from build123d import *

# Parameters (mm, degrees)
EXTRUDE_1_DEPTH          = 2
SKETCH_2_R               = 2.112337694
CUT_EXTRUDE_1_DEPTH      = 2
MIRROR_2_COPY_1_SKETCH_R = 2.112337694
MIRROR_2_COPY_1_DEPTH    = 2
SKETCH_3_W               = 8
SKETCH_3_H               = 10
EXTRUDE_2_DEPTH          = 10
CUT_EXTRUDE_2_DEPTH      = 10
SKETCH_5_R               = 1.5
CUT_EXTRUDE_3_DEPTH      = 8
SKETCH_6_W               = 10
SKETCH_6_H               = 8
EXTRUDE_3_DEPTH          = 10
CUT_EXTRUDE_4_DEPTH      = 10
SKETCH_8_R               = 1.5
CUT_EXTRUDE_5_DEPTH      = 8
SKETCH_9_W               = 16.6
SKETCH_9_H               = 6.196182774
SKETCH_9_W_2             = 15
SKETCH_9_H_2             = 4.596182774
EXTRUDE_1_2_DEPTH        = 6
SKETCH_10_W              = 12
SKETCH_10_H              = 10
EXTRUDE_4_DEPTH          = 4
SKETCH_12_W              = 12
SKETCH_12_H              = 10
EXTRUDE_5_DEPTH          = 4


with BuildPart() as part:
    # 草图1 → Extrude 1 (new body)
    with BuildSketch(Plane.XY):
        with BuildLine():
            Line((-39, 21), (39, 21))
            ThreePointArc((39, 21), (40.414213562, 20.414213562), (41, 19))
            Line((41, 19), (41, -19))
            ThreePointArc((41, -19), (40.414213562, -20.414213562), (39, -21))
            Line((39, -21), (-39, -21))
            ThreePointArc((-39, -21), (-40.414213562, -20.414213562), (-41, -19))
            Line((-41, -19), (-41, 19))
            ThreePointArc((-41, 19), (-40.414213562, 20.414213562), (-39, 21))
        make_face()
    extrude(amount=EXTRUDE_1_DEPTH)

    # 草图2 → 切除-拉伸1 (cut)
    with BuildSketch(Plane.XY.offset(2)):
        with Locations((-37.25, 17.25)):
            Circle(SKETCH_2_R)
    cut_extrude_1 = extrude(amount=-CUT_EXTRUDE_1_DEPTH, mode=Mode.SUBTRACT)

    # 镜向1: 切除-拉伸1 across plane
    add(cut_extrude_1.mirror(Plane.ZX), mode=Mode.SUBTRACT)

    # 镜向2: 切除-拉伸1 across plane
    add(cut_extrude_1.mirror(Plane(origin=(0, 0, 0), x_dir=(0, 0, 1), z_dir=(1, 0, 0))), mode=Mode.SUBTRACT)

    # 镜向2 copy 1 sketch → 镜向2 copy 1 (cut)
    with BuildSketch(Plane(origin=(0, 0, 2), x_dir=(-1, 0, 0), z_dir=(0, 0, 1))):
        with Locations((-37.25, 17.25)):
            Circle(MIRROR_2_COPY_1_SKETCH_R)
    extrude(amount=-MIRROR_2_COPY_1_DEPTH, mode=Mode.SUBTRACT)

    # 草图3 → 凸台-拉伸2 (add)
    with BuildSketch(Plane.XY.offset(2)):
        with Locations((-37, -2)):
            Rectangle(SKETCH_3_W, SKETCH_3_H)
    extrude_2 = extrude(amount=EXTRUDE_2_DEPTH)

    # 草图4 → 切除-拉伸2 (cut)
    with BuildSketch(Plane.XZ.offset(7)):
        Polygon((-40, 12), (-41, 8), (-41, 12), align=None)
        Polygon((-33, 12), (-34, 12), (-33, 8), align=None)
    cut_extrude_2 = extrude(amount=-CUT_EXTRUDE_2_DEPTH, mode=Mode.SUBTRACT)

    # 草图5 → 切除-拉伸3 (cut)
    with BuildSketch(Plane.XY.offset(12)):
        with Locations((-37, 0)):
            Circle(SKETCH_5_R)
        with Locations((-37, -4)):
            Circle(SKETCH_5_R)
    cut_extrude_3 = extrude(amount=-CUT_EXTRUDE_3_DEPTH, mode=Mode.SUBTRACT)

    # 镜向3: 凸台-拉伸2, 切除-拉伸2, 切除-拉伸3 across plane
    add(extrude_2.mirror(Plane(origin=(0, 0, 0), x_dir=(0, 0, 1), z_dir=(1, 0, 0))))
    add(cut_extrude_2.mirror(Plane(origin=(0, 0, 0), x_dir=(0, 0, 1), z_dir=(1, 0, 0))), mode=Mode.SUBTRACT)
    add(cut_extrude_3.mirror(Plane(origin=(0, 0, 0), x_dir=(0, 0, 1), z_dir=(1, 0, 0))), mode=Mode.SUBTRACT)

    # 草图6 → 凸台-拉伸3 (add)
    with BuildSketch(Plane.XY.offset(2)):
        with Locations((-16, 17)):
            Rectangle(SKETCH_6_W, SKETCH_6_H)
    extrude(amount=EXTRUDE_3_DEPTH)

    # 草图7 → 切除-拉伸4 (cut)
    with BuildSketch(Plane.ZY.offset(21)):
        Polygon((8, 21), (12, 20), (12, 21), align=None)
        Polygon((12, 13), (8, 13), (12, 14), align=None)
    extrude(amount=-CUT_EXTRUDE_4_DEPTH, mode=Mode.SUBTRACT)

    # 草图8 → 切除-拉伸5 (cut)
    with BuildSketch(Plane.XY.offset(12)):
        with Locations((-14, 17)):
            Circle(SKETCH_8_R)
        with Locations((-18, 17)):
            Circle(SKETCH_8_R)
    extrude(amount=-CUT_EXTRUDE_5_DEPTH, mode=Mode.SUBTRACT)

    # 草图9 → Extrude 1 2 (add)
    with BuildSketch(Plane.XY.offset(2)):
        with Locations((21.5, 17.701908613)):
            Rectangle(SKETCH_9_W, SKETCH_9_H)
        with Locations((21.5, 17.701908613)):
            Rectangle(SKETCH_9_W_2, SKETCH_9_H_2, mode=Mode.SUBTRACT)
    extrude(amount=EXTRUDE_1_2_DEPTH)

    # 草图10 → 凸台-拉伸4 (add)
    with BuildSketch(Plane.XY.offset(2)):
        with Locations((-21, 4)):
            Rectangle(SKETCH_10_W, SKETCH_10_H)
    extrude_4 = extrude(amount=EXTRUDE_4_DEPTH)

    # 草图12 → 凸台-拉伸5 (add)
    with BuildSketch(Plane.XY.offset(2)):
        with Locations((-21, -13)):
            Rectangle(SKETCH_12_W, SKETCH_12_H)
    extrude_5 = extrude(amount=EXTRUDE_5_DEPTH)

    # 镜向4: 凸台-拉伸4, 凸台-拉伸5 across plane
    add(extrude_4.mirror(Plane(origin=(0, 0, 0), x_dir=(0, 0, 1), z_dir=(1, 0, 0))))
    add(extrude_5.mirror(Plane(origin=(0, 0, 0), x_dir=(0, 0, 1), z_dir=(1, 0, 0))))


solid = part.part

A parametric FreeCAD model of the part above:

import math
import FreeCAD as App
import Part
import Sketcher

V = App.Vector
Q = App.Units.Quantity


def add_polygon(sketch, points):
    """Adds a closed chain of lines whose ends are joined by coincident constraints."""
    first, n = sketch.GeometryCount, len(points)
    for a, b in zip(points, points[1:] + points[:1]):
        sketch.addGeometry(Part.LineSegment(App.Vector(*a, 0), App.Vector(*b, 0)), False)
    for i in range(n):
        sketch.addConstraint(Sketcher.Constraint("Coincident", first + i, 2, first + (i + 1) % n, 1))

doc = App.newDocument("Part")
body = doc.addObject("PartDesign::Body", "Body")

# Sketch on XY plane
sketch1 = body.newObject("Sketcher::SketchObject", "Sketch")
sketch1.AttachmentSupport = (doc.getObject("XY_Plane"), [""])
sketch1.MapMode = "FlatFace"
sketch1.addGeometry(Part.LineSegment(V(39, 21, 0), V(-39, 21, 0)), False)
sketch1.addGeometry(Part.ArcOfCircle(Part.Circle(V(-39, 19, 0), V(0, 0, 1), 2), math.radians(90), math.radians(180)), False)
sketch1.addGeometry(Part.LineSegment(V(-41, 19, 0), V(-41, -19, 0)), False)
sketch1.addGeometry(Part.ArcOfCircle(Part.Circle(V(-39, -19, 0), V(0, 0, 1), 2), math.radians(-180), math.radians(-90)), False)
sketch1.addGeometry(Part.LineSegment(V(-39, -21, 0), V(39, -21, 0)), False)
sketch1.addGeometry(Part.ArcOfCircle(Part.Circle(V(39, -19, 0), V(0, 0, 1), 2), math.radians(-90), math.radians(0)), False)
sketch1.addGeometry(Part.LineSegment(V(41, -19, 0), V(41, 19, 0)), False)
sketch1.addGeometry(Part.ArcOfCircle(Part.Circle(V(39, 19, 0), V(0, 0, 1), 2), math.radians(0), math.radians(90)), False)
sketch1.addConstraint(Sketcher.Constraint("Tangent", 0, 2, 1, 1))
sketch1.addConstraint(Sketcher.Constraint("Tangent", 1, 2, 2, 1))
sketch1.addConstraint(Sketcher.Constraint("Tangent", 2, 2, 3, 1))
sketch1.addConstraint(Sketcher.Constraint("Tangent", 3, 2, 4, 1))
sketch1.addConstraint(Sketcher.Constraint("Tangent", 4, 2, 5, 1))
sketch1.addConstraint(Sketcher.Constraint("Tangent", 5, 2, 6, 1))
sketch1.addConstraint(Sketcher.Constraint("Tangent", 6, 2, 7, 1))
sketch1.addConstraint(Sketcher.Constraint("Tangent", 7, 2, 0, 1))
sketch1.addConstraint(Sketcher.Constraint("Horizontal", 0))
sketch1.addConstraint(Sketcher.Constraint("Vertical", 2))
sketch1.addConstraint(Sketcher.Constraint("Horizontal", 4))
sketch1.addConstraint(Sketcher.Constraint("Vertical", 6))
sketch1.addConstraint(Sketcher.Constraint("Equal", 1, 3))
sketch1.addConstraint(Sketcher.Constraint("Equal", 3, 5))
sketch1.addConstraint(Sketcher.Constraint("Equal", 5, 7))
sketch1.addConstraint(Sketcher.Constraint("Symmetric", 1, 3, 5, 3, -1, 1))
sketch1.addConstraint(Sketcher.Constraint("Radius", 1, Q("2 mm")))
sketch1.addConstraint(Sketcher.Constraint("DistanceX", 0, 2, 0, 1, Q("78 mm")))
sketch1.addConstraint(Sketcher.Constraint("DistanceY", 2, 2, 2, 1, Q("38 mm")))
pad1 = body.newObject("PartDesign::Pad", "Pad")
pad1.Profile = sketch1
pad1.Length = 2

# Sketch on XY plane
sketch2 = body.newObject("Sketcher::SketchObject", "Sketch001")
sketch2.AttachmentSupport = (doc.getObject("XY_Plane"), [""])
sketch2.MapMode = "FlatFace"
sketch2.AttachmentOffset = App.Placement(V(0, 0, 2), App.Rotation())
sketch2.addGeometry(Part.Circle(V(-37.25, 17.25, 0), V(0, 0, 1), 2.112338), False)
sketch2.addConstraint(Sketcher.Constraint("DistanceX", 0, 3, -1, 1, Q("37.25 mm")))
sketch2.addConstraint(Sketcher.Constraint("DistanceY", -1, 1, 0, 3, Q("17.25 mm")))
sketch2.addConstraint(Sketcher.Constraint("Diameter", 0, Q("4.224675 mm")))
pocket1 = body.newObject("PartDesign::Pocket", "Pocket")
pocket1.Profile = sketch2
pocket1.Length = 2
doc.recompute()

mirrored = body.newObject("PartDesign::Mirrored", "Mirrored")
mirrored.Originals = [pocket1]
mirrored.MirrorPlane = (doc.getObject("XZ_Plane"), [""])
body.Tip = mirrored
doc.recompute()

mirrored2 = body.newObject("PartDesign::Mirrored", "Mirrored001")
mirrored2.Originals = [pocket1]
mirrored2.MirrorPlane = (doc.getObject("YZ_Plane"), [""])
body.Tip = mirrored2

# Sketch on XY plane
sketch3 = body.newObject("Sketcher::SketchObject", "Sketch002")
sketch3.AttachmentSupport = (doc.getObject("XY_Plane"), [""])
sketch3.MapMode = "FlatFace"
sketch3.AttachmentOffset = App.Placement(V(0, 0, 2), App.Rotation())
sketch3.addGeometry(Part.Circle(V(37.25, -17.25, 0), V(0, 0, 1), 2.112338), False)
sketch3.addConstraint(Sketcher.Constraint("DistanceX", -1, 1, 0, 3, Q("37.25 mm")))
sketch3.addConstraint(Sketcher.Constraint("DistanceY", 0, 3, -1, 1, Q("17.25 mm")))
sketch3.addConstraint(Sketcher.Constraint("Diameter", 0, Q("4.224675 mm")))
pocket2 = body.newObject("PartDesign::Pocket", "Pocket001")
pocket2.Profile = sketch3
pocket2.Length = 2

# Sketch on XY plane
sketch4 = body.newObject("Sketcher::SketchObject", "Sketch003")
sketch4.AttachmentSupport = (doc.getObject("XY_Plane"), [""])
sketch4.MapMode = "FlatFace"
sketch4.AttachmentOffset = App.Placement(V(0, 0, 2), App.Rotation())
add_polygon(sketch4, [(-41, 3), (-41, -7), (-33, -7), (-33, 3)])  # lines 0-3
sketch4.addConstraint(Sketcher.Constraint("Vertical", 0))
sketch4.addConstraint(Sketcher.Constraint("Horizontal", 1))
sketch4.addConstraint(Sketcher.Constraint("Vertical", 2))
sketch4.addConstraint(Sketcher.Constraint("Horizontal", 3))
sketch4.addConstraint(Sketcher.Constraint("DistanceX", 1, 1, 1, 2, Q("8 mm")))
sketch4.addConstraint(Sketcher.Constraint("DistanceY", 0, 2, 0, 1, Q("10 mm")))
sketch4.addConstraint(Sketcher.Constraint("DistanceX", 0, 2, -1, 1, Q("41 mm")))
sketch4.addConstraint(Sketcher.Constraint("DistanceY", 0, 2, -1, 1, Q("7 mm")))
pad2 = body.newObject("PartDesign::Pad", "Pad001")
pad2.Profile = sketch4
pad2.Length = 10

# Sketch on XZ plane
sketch5 = body.newObject("Sketcher::SketchObject", "Sketch004")
sketch5.AttachmentSupport = (doc.getObject("XZ_Plane"), [""])
sketch5.MapMode = "FlatFace"
sketch5.AttachmentOffset = App.Placement(V(0, 0, 7), App.Rotation())
add_polygon(sketch5, [(-41, 8), (-40, 12), (-41, 12)])  # lines 0-2
add_polygon(sketch5, [(-33, 12), (-34, 12), (-33, 8)])  # lines 3-5
sketch5.addConstraint(Sketcher.Constraint("Horizontal", 1))
sketch5.addConstraint(Sketcher.Constraint("Vertical", 2))
sketch5.addConstraint(Sketcher.Constraint("Horizontal", 3))
sketch5.addConstraint(Sketcher.Constraint("Vertical", 5))
sketch5.addConstraint(Sketcher.Constraint("Horizontal", 1, 2, 3, 2))
sketch5.addConstraint(Sketcher.Constraint("Horizontal", 2, 2, 4, 2))
sketch5.addConstraint(Sketcher.Constraint("Equal", 1, 3))
sketch5.addConstraint(Sketcher.Constraint("DistanceX", 1, 2, 1, 1, Q("1 mm")))
sketch5.addConstraint(Sketcher.Constraint("DistanceY", 2, 2, 2, 1, Q("4 mm")))
sketch5.addConstraint(Sketcher.Constraint("DistanceX", 0, 2, -1, 1, Q("40 mm")))
sketch5.addConstraint(Sketcher.Constraint("DistanceY", -1, 1, 0, 2, Q("12 mm")))
sketch5.addConstraint(Sketcher.Constraint("DistanceX", 3, 2, -1, 1, Q("34 mm")))
pocket3 = body.newObject("PartDesign::Pocket", "Pocket002")
pocket3.Profile = sketch5
pocket3.Length = 10

# Sketch on XY plane
sketch6 = body.newObject("Sketcher::SketchObject", "Sketch005")
sketch6.AttachmentSupport = (doc.getObject("XY_Plane"), [""])
sketch6.MapMode = "FlatFace"
sketch6.AttachmentOffset = App.Placement(V(0, 0, 12), App.Rotation())
sketch6.addGeometry(Part.Circle(V(-37, 0, 0), V(0, 0, 1), 1.5), False)
sketch6.addGeometry(Part.Circle(V(-37, -4, 0), V(0, 0, 1), 1.5), False)
sketch6.addConstraint(Sketcher.Constraint("Equal", 0, 1))
sketch6.addConstraint(Sketcher.Constraint("PointOnObject", 0, 3, -1))
sketch6.addConstraint(Sketcher.Constraint("Vertical", 0, 3, 1, 3))
sketch6.addConstraint(Sketcher.Constraint("Diameter", 0, Q("3 mm")))
sketch6.addConstraint(Sketcher.Constraint("DistanceX", 0, 3, -1, 1, Q("37 mm")))
sketch6.addConstraint(Sketcher.Constraint("DistanceY", 1, 3, -1, 1, Q("4 mm")))
pocket4 = body.newObject("PartDesign::Pocket", "Pocket003")
pocket4.Profile = sketch6
pocket4.Length = 8
doc.recompute()

mirrored3 = body.newObject("PartDesign::Mirrored", "Mirrored002")
mirrored3.Originals = [pad2, pocket3, pocket4]
mirrored3.MirrorPlane = (doc.getObject("YZ_Plane"), [""])
body.Tip = mirrored3

# Sketch on XY plane
sketch7 = body.newObject("Sketcher::SketchObject", "Sketch006")
sketch7.AttachmentSupport = (doc.getObject("XY_Plane"), [""])
sketch7.MapMode = "FlatFace"
sketch7.AttachmentOffset = App.Placement(V(0, 0, 2), App.Rotation())
add_polygon(sketch7, [(-21, 21), (-21, 13), (-11, 13), (-11, 21)])  # lines 0-3
sketch7.addConstraint(Sketcher.Constraint("Vertical", 0))
sketch7.addConstraint(Sketcher.Constraint("Horizontal", 1))
sketch7.addConstraint(Sketcher.Constraint("Vertical", 2))
sketch7.addConstraint(Sketcher.Constraint("Horizontal", 3))
sketch7.addConstraint(Sketcher.Constraint("DistanceX", 1, 1, 1, 2, Q("10 mm")))
sketch7.addConstraint(Sketcher.Constraint("DistanceY", 0, 2, 0, 1, Q("8 mm")))
sketch7.addConstraint(Sketcher.Constraint("DistanceX", 0, 2, -1, 1, Q("21 mm")))
sketch7.addConstraint(Sketcher.Constraint("DistanceY", -1, 1, 0, 2, Q("13 mm")))
pad3 = body.newObject("PartDesign::Pad", "Pad002")
pad3.Profile = sketch7
pad3.Length = 10

# Sketch on YZ plane
sketch8 = body.newObject("Sketcher::SketchObject", "Sketch007")
sketch8.AttachmentSupport = (doc.getObject("YZ_Plane"), [""])
sketch8.MapMode = "FlatFace"
sketch8.AttachmentOffset = App.Placement(V(0, 0, -21), App.Rotation())
add_polygon(sketch8, [(21, 8), (20, 12), (21, 12)])  # lines 0-2
add_polygon(sketch8, [(13, 8), (13, 12), (14, 12)])  # lines 3-5
sketch8.addConstraint(Sketcher.Constraint("Horizontal", 1))
sketch8.addConstraint(Sketcher.Constraint("Vertical", 2))
sketch8.addConstraint(Sketcher.Constraint("Vertical", 3))
sketch8.addConstraint(Sketcher.Constraint("Horizontal", 4))
sketch8.addConstraint(Sketcher.Constraint("Horizontal", 1, 2, 3, 2))
sketch8.addConstraint(Sketcher.Constraint("Horizontal", 2, 2, 5, 2))
sketch8.addConstraint(Sketcher.Constraint("Equal", 1, 4))
sketch8.addConstraint(Sketcher.Constraint("DistanceX", 1, 1, 1, 2, Q("1 mm")))
sketch8.addConstraint(Sketcher.Constraint("DistanceY", 2, 2, 2, 1, Q("4 mm")))
sketch8.addConstraint(Sketcher.Constraint("DistanceX", -1, 1, 0, 2, Q("20 mm")))
sketch8.addConstraint(Sketcher.Constraint("DistanceY", -1, 1, 0, 2, Q("12 mm")))
sketch8.addConstraint(Sketcher.Constraint("DistanceX", -1, 1, 3, 2, Q("13 mm")))
pocket5 = body.newObject("PartDesign::Pocket", "Pocket004")
pocket5.Profile = sketch8
pocket5.Length = 10
pocket5.Reversed = True

# Sketch on XY plane
sketch9 = body.newObject("Sketcher::SketchObject", "Sketch008")
sketch9.AttachmentSupport = (doc.getObject("XY_Plane"), [""])
sketch9.MapMode = "FlatFace"
sketch9.AttachmentOffset = App.Placement(V(0, 0, 12), App.Rotation())
sketch9.addGeometry(Part.Circle(V(-14, 17, 0), V(0, 0, 1), 1.5), False)
sketch9.addGeometry(Part.Circle(V(-18, 17, 0), V(0, 0, 1), 1.5), False)
sketch9.addConstraint(Sketcher.Constraint("Equal", 0, 1))
sketch9.addConstraint(Sketcher.Constraint("Horizontal", 0, 3, 1, 3))
sketch9.addConstraint(Sketcher.Constraint("Diameter", 0, Q("3 mm")))
sketch9.addConstraint(Sketcher.Constraint("DistanceX", 0, 3, -1, 1, Q("14 mm")))
sketch9.addConstraint(Sketcher.Constraint("DistanceY", -1, 1, 0, 3, Q("17 mm")))
sketch9.addConstraint(Sketcher.Constraint("DistanceX", 1, 3, -1, 1, Q("18 mm")))
pocket6 = body.newObject("PartDesign::Pocket", "Pocket005")
pocket6.Profile = sketch9
pocket6.Length = 8

# Sketch on XY plane
sketch10 = body.newObject("Sketcher::SketchObject", "Sketch009")
sketch10.AttachmentSupport = (doc.getObject("XY_Plane"), [""])
sketch10.MapMode = "FlatFace"
sketch10.AttachmentOffset = App.Placement(V(0, 0, 2), App.Rotation())
add_polygon(sketch10, [(13.2, 20.8), (13.2, 14.603817), (29.8, 14.603817), (29.8, 20.8)])  # lines 0-3
add_polygon(sketch10, [(29, 15.403817), (14, 15.403817), (14, 20), (29, 20)])  # lines 4-7
sketch10.addConstraint(Sketcher.Constraint("Vertical", 0))
sketch10.addConstraint(Sketcher.Constraint("Horizontal", 1))
sketch10.addConstraint(Sketcher.Constraint("Vertical", 2))
sketch10.addConstraint(Sketcher.Constraint("Horizontal", 3))
sketch10.addConstraint(Sketcher.Constraint("Horizontal", 4))
sketch10.addConstraint(Sketcher.Constraint("Vertical", 5))
sketch10.addConstraint(Sketcher.Constraint("Horizontal", 6))
sketch10.addConstraint(Sketcher.Constraint("Vertical", 7))
sketch10.addConstraint(Sketcher.Constraint("DistanceX", 4, 2, 4, 1, Q("15 mm")))
sketch10.addConstraint(Sketcher.Constraint("DistanceX", 1, 1, 1, 2, Q("16.6 mm")))
sketch10.addConstraint(Sketcher.Constraint("DistanceX", -1, 1, 4, 2, Q("14 mm")))
sketch10.addConstraint(Sketcher.Constraint("DistanceY", -1, 1, 5, 2, Q("20 mm")))
sketch10.addConstraint(Sketcher.Constraint("DistanceX", -1, 1, 0, 2, Q("13.2 mm")))
sketch10.addConstraint(Sketcher.Constraint("DistanceY", -1, 1, 2, 2, Q("20.8 mm")))
sketch10.addConstraint(Sketcher.Constraint("DistanceY", 0, 2, 4, 2, Q("0.8 mm")))
sketch10.addConstraint(Sketcher.Constraint("DistanceY", 0, 2, 0, 1, Q("6.196183 mm")))
pad4 = body.newObject("PartDesign::Pad", "Pad003")
pad4.Profile = sketch10
pad4.Length = 6

# Sketch on XY plane
sketch11 = body.newObject("Sketcher::SketchObject", "Sketch010")
sketch11.AttachmentSupport = (doc.getObject("XY_Plane"), [""])
sketch11.MapMode = "FlatFace"
sketch11.AttachmentOffset = App.Placement(V(0, 0, 2), App.Rotation())
add_polygon(sketch11, [(-27, 9), (-27, -1), (-15, -1), (-15, 9)])  # lines 0-3
sketch11.addConstraint(Sketcher.Constraint("Vertical", 0))
sketch11.addConstraint(Sketcher.Constraint("Horizontal", 1))
sketch11.addConstraint(Sketcher.Constraint("Vertical", 2))
sketch11.addConstraint(Sketcher.Constraint("Horizontal", 3))
sketch11.addConstraint(Sketcher.Constraint("DistanceX", 1, 1, 1, 2, Q("12 mm")))
sketch11.addConstraint(Sketcher.Constraint("DistanceY", 0, 2, 0, 1, Q("10 mm")))
sketch11.addConstraint(Sketcher.Constraint("DistanceX", 0, 2, -1, 1, Q("27 mm")))
sketch11.addConstraint(Sketcher.Constraint("DistanceY", 0, 2, -1, 1, Q("1 mm")))
pad5 = body.newObject("PartDesign::Pad", "Pad004")
pad5.Profile = sketch11
pad5.Length = 4

# Sketch on XY plane
sketch12 = body.newObject("Sketcher::SketchObject", "Sketch011")
sketch12.AttachmentSupport = (doc.getObject("XY_Plane"), [""])
sketch12.MapMode = "FlatFace"
sketch12.AttachmentOffset = App.Placement(V(0, 0, 2), App.Rotation())
add_polygon(sketch12, [(-27, -8), (-27, -18), (-15, -18), (-15, -8)])  # lines 0-3
sketch12.addConstraint(Sketcher.Constraint("Vertical", 0))
sketch12.addConstraint(Sketcher.Constraint("Horizontal", 1))
sketch12.addConstraint(Sketcher.Constraint("Vertical", 2))
sketch12.addConstraint(Sketcher.Constraint("Horizontal", 3))
sketch12.addConstraint(Sketcher.Constraint("DistanceX", 1, 1, 1, 2, Q("12 mm")))
sketch12.addConstraint(Sketcher.Constraint("DistanceY", 0, 2, 0, 1, Q("10 mm")))
sketch12.addConstraint(Sketcher.Constraint("DistanceX", 0, 2, -1, 1, Q("27 mm")))
sketch12.addConstraint(Sketcher.Constraint("DistanceY", 0, 2, -1, 1, Q("18 mm")))
pad6 = body.newObject("PartDesign::Pad", "Pad005")
pad6.Profile = sketch12
pad6.Length = 4
doc.recompute()

mirrored4 = body.newObject("PartDesign::Mirrored", "Mirrored003")
mirrored4.Originals = [pad5, pad6]
mirrored4.MirrorPlane = (doc.getObject("YZ_Plane"), [""])
body.Tip = mirrored4

doc.recompute()
